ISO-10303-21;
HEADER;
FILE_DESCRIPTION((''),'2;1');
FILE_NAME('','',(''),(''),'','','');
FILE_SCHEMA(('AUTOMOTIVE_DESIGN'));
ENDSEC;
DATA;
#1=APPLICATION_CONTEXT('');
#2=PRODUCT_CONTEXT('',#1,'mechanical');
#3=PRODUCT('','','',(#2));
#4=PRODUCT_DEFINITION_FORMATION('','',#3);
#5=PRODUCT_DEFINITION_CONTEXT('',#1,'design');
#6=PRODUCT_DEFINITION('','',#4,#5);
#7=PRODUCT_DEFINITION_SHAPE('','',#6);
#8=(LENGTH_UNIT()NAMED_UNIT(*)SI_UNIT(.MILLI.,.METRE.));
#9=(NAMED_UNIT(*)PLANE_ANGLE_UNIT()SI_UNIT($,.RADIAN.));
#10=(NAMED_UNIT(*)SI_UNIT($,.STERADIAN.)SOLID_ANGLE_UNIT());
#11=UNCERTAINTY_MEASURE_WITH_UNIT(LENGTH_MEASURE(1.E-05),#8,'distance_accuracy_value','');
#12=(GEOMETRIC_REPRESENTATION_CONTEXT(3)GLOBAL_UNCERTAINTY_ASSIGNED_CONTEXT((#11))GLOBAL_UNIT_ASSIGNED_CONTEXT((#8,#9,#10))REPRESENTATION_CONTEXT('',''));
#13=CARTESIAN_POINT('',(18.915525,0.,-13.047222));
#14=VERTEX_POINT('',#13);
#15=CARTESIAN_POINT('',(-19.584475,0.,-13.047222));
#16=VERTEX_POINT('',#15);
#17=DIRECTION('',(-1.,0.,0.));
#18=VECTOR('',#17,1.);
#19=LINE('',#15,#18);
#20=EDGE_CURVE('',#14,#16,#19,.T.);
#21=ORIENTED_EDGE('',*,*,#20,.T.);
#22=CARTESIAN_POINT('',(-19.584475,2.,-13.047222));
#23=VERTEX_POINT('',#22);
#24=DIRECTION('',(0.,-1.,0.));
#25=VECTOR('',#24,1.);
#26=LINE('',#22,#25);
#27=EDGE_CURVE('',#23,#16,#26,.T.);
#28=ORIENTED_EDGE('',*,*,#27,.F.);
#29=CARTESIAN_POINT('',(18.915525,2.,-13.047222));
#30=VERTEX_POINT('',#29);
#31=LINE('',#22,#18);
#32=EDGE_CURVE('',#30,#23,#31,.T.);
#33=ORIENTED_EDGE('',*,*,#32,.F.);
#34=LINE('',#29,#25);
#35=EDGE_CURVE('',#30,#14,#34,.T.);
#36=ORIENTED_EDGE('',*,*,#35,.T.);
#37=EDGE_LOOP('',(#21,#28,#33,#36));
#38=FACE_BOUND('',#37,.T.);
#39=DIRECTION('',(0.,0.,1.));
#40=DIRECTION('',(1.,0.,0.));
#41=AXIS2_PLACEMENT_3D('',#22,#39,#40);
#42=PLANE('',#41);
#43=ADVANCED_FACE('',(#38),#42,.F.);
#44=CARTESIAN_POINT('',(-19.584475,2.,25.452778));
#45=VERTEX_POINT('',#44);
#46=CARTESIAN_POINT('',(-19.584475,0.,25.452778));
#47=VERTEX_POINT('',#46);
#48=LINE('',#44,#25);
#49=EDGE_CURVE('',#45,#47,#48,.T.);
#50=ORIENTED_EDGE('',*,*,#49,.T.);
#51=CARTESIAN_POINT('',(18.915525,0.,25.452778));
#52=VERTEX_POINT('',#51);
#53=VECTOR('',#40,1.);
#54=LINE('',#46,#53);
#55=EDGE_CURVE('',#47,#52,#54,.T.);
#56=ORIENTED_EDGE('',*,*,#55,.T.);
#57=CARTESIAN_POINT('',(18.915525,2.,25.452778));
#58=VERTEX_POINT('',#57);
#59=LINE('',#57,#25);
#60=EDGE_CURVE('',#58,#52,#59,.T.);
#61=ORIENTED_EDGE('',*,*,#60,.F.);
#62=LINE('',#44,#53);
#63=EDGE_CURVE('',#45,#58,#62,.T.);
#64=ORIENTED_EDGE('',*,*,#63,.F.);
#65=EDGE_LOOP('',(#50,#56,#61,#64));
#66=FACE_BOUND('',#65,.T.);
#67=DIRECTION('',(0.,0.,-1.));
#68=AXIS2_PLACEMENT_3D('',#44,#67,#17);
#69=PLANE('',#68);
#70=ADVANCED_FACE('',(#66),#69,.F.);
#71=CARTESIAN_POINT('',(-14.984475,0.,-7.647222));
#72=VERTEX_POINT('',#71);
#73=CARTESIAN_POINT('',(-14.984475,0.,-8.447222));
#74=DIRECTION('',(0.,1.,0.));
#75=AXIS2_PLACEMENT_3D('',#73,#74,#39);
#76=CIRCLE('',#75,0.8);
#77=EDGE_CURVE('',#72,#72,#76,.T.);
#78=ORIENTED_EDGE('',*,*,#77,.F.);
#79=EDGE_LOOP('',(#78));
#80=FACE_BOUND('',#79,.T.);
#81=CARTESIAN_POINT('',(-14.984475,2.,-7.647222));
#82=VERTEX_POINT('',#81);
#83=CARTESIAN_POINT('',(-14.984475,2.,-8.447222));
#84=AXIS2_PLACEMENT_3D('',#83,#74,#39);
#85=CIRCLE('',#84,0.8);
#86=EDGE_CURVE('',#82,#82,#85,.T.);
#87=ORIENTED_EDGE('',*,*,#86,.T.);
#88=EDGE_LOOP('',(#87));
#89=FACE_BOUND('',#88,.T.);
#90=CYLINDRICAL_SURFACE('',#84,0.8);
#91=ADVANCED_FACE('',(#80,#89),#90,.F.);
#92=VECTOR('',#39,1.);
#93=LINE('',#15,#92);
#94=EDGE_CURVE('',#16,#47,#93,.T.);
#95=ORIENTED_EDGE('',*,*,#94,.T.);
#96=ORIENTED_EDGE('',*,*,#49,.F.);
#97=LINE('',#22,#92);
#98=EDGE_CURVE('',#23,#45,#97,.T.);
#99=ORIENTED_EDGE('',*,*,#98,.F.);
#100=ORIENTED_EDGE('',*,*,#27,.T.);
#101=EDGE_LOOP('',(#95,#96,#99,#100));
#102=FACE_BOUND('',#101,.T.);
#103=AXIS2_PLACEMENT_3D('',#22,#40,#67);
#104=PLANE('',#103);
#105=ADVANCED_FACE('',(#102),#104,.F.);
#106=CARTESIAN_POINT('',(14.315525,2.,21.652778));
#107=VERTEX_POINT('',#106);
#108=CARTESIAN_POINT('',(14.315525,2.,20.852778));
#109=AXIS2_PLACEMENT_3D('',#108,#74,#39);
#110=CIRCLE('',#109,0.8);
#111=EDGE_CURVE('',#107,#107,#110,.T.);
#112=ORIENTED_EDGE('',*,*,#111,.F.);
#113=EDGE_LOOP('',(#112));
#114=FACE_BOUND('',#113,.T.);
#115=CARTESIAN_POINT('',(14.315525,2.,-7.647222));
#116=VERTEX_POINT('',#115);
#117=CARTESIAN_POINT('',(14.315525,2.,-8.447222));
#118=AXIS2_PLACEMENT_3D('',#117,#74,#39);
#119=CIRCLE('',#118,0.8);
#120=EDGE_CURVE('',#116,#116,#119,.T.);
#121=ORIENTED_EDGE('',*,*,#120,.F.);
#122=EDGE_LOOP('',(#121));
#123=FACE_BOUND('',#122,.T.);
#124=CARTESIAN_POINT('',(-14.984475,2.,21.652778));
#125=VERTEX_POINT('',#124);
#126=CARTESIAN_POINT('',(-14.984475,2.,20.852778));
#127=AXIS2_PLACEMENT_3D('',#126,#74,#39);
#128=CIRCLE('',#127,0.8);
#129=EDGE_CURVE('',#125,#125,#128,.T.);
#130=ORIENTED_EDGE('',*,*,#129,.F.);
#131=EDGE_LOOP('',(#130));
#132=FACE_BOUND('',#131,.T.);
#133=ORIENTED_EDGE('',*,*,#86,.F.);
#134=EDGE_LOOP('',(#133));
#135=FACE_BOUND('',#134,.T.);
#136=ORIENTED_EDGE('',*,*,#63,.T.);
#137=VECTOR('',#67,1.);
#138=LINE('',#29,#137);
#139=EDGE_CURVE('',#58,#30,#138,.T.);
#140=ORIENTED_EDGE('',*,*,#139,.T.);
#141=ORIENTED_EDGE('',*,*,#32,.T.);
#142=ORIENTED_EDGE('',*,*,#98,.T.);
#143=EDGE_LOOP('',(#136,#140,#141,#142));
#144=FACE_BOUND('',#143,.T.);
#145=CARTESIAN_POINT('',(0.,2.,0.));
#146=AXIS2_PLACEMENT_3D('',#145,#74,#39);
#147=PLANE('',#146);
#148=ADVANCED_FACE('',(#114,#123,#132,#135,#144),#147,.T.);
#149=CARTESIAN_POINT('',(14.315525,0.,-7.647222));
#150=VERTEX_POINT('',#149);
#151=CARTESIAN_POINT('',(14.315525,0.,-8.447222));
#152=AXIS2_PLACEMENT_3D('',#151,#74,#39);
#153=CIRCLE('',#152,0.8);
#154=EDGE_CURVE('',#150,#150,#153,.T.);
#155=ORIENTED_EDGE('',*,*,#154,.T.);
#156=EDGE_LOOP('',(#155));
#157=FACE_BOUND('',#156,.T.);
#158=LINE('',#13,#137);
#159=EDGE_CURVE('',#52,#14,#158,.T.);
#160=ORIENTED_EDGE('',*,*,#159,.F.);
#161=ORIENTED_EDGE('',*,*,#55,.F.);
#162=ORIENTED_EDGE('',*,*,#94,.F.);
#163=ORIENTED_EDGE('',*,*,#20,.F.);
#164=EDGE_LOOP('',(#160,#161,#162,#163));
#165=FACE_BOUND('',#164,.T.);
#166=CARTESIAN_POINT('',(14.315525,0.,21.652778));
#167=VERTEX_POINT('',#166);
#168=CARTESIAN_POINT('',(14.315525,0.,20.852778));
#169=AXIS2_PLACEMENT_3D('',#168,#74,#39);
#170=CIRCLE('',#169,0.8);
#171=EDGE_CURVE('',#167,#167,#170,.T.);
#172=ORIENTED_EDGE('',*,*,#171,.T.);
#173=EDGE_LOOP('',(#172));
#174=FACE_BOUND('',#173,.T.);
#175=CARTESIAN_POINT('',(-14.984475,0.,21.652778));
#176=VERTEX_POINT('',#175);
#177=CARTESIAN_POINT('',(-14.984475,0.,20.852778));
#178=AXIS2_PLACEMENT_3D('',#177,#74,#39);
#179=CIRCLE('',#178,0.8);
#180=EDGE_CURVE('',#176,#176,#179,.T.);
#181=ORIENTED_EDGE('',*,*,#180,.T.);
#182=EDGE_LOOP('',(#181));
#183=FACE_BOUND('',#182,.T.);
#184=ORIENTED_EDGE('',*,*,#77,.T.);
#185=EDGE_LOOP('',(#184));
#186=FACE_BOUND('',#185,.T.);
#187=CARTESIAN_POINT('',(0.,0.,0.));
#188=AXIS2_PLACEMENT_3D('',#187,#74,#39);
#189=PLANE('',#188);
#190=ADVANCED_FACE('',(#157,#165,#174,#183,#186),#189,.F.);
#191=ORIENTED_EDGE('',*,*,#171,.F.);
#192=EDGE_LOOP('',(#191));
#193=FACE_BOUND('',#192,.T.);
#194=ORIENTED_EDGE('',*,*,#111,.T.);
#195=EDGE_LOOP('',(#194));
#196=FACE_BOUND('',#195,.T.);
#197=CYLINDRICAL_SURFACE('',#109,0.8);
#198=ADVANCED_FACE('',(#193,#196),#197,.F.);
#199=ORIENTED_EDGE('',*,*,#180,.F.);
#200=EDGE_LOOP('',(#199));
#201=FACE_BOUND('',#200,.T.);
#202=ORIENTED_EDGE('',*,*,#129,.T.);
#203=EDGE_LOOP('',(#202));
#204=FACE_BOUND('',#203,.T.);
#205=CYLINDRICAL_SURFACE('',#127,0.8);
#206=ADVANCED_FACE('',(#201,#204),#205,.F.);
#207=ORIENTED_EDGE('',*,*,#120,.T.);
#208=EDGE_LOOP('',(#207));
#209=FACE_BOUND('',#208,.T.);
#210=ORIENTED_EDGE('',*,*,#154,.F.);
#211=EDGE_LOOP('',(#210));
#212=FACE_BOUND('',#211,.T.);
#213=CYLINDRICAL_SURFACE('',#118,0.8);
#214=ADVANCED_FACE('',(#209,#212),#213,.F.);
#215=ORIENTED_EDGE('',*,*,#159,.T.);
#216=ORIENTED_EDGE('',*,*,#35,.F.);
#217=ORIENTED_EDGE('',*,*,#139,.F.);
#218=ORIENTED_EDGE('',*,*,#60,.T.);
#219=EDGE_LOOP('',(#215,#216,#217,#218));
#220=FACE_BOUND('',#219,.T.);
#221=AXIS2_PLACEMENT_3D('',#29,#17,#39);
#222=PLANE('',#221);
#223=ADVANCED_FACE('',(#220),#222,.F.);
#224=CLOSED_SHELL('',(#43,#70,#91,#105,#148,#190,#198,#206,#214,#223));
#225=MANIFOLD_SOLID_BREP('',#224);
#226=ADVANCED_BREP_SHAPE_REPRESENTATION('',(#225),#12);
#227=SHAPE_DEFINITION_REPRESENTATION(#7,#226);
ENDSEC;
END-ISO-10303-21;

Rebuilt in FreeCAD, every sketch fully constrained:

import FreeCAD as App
import Part
import Sketcher
from FreeCAD import Vector


def add_polygon(sketch, points):
    """Adds a closed chain of lines whose ends are joined by coincident constraints."""
    first, n = sketch.GeometryCount, len(points)
    for a, b in zip(points, points[1:] + points[:1]):
        sketch.addGeometry(Part.LineSegment(App.Vector(*a, 0), App.Vector(*b, 0)), False)
    for i in range(n):
        sketch.addConstraint(Sketcher.Constraint("Coincident", first + i, 2, first + (i + 1) % n, 1))

doc = App.newDocument("Part")
body = doc.addObject("PartDesign::Body", "Body")

sketch1 = body.newObject("Sketcher::SketchObject", "Sketch")
sketch1.AttachmentSupport = (doc.getObject("XZ_Plane"), [""])
sketch1.MapMode = "FlatFace"
add_polygon(sketch1, [(-20, -13), (-20, 25), (19, 25), (19, -13)])
sketch1.addConstraint([
    Sketcher.Constraint("Vertical", 0),
    Sketcher.Constraint("Horizontal", 1),
    Sketcher.Constraint("Vertical", 2),
    Sketcher.Constraint("Horizontal", 3),
    Sketcher.Constraint("Equal", 3, 0),
    Sketcher.Constraint("DistanceX", 1, 1, 1, 2, 38.5),
    Sketcher.Constraint("DistanceX", 0, 2, -1, 1, 19.584475),
    Sketcher.Constraint("DistanceY", -1, 1, 0, 2, 25.452778),
])
pad1 = body.newObject("PartDesign::Pad", "Pad")
pad1.Profile = sketch1
pad1.Length = 2
pad1.Reversed = True

sketch2 = body.newObject("Sketcher::SketchObject", "Sketch001")
sketch2.AttachmentSupport = (doc.getObject("XZ_Plane"), [""])
sketch2.MapMode = "FlatFace"
sketch2.AttachmentOffset = App.Placement(Vector(0, 0, -2), App.Rotation())
sketch2.addGeometry([
    Part.Circle(Vector(-15, -8.4, 0), Vector(0, 0, 1), 0.8),
    Part.Circle(Vector(14.3, 20.9, 0), Vector(0, 0, 1), 0.8),
    Part.Circle(Vector(14.3, -8.4, 0), Vector(0, 0, 1), 0.8),
    Part.Circle(Vector(-15, 20.9, 0), Vector(0, 0, 1), 0.8),
], False)
sketch2.addConstraint([
    Sketcher.Constraint("Equal", 0, 1),
    Sketcher.Constraint("Equal", 1, 2),
    Sketcher.Constraint("Equal", 2, 3),
    Sketcher.Constraint("Horizontal", 0, 3, 2, 3),
    Sketcher.Constraint("Horizontal", 1, 3, 3, 3),
    Sketcher.Constraint("Vertical", 1, 3, 2, 3),
    Sketcher.Constraint("Vertical", 0, 3, 3, 3),
    Sketcher.Constraint("Diameter", 0, 1.6),
    Sketcher.Constraint("DistanceX", 0, 3, 1, 3, 29.3),
    Sketcher.Constraint("DistanceY", 0, 3, 1, 3, 29.3),
    Sketcher.Constraint("DistanceX", 0, 3, -1, 1, 14.984475),
    Sketcher.Constraint("DistanceY", 0, 3, -1, 1, 8.447222),
])
doc.recompute()
hole = body.newObject("PartDesign::Hole", "Hole")
hole.Profile = sketch2
hole.ThreadType = "None"
hole.Diameter = 1.6
hole.DepthType = "ThroughAll"
hole.Reversed = True

doc.recompute()
